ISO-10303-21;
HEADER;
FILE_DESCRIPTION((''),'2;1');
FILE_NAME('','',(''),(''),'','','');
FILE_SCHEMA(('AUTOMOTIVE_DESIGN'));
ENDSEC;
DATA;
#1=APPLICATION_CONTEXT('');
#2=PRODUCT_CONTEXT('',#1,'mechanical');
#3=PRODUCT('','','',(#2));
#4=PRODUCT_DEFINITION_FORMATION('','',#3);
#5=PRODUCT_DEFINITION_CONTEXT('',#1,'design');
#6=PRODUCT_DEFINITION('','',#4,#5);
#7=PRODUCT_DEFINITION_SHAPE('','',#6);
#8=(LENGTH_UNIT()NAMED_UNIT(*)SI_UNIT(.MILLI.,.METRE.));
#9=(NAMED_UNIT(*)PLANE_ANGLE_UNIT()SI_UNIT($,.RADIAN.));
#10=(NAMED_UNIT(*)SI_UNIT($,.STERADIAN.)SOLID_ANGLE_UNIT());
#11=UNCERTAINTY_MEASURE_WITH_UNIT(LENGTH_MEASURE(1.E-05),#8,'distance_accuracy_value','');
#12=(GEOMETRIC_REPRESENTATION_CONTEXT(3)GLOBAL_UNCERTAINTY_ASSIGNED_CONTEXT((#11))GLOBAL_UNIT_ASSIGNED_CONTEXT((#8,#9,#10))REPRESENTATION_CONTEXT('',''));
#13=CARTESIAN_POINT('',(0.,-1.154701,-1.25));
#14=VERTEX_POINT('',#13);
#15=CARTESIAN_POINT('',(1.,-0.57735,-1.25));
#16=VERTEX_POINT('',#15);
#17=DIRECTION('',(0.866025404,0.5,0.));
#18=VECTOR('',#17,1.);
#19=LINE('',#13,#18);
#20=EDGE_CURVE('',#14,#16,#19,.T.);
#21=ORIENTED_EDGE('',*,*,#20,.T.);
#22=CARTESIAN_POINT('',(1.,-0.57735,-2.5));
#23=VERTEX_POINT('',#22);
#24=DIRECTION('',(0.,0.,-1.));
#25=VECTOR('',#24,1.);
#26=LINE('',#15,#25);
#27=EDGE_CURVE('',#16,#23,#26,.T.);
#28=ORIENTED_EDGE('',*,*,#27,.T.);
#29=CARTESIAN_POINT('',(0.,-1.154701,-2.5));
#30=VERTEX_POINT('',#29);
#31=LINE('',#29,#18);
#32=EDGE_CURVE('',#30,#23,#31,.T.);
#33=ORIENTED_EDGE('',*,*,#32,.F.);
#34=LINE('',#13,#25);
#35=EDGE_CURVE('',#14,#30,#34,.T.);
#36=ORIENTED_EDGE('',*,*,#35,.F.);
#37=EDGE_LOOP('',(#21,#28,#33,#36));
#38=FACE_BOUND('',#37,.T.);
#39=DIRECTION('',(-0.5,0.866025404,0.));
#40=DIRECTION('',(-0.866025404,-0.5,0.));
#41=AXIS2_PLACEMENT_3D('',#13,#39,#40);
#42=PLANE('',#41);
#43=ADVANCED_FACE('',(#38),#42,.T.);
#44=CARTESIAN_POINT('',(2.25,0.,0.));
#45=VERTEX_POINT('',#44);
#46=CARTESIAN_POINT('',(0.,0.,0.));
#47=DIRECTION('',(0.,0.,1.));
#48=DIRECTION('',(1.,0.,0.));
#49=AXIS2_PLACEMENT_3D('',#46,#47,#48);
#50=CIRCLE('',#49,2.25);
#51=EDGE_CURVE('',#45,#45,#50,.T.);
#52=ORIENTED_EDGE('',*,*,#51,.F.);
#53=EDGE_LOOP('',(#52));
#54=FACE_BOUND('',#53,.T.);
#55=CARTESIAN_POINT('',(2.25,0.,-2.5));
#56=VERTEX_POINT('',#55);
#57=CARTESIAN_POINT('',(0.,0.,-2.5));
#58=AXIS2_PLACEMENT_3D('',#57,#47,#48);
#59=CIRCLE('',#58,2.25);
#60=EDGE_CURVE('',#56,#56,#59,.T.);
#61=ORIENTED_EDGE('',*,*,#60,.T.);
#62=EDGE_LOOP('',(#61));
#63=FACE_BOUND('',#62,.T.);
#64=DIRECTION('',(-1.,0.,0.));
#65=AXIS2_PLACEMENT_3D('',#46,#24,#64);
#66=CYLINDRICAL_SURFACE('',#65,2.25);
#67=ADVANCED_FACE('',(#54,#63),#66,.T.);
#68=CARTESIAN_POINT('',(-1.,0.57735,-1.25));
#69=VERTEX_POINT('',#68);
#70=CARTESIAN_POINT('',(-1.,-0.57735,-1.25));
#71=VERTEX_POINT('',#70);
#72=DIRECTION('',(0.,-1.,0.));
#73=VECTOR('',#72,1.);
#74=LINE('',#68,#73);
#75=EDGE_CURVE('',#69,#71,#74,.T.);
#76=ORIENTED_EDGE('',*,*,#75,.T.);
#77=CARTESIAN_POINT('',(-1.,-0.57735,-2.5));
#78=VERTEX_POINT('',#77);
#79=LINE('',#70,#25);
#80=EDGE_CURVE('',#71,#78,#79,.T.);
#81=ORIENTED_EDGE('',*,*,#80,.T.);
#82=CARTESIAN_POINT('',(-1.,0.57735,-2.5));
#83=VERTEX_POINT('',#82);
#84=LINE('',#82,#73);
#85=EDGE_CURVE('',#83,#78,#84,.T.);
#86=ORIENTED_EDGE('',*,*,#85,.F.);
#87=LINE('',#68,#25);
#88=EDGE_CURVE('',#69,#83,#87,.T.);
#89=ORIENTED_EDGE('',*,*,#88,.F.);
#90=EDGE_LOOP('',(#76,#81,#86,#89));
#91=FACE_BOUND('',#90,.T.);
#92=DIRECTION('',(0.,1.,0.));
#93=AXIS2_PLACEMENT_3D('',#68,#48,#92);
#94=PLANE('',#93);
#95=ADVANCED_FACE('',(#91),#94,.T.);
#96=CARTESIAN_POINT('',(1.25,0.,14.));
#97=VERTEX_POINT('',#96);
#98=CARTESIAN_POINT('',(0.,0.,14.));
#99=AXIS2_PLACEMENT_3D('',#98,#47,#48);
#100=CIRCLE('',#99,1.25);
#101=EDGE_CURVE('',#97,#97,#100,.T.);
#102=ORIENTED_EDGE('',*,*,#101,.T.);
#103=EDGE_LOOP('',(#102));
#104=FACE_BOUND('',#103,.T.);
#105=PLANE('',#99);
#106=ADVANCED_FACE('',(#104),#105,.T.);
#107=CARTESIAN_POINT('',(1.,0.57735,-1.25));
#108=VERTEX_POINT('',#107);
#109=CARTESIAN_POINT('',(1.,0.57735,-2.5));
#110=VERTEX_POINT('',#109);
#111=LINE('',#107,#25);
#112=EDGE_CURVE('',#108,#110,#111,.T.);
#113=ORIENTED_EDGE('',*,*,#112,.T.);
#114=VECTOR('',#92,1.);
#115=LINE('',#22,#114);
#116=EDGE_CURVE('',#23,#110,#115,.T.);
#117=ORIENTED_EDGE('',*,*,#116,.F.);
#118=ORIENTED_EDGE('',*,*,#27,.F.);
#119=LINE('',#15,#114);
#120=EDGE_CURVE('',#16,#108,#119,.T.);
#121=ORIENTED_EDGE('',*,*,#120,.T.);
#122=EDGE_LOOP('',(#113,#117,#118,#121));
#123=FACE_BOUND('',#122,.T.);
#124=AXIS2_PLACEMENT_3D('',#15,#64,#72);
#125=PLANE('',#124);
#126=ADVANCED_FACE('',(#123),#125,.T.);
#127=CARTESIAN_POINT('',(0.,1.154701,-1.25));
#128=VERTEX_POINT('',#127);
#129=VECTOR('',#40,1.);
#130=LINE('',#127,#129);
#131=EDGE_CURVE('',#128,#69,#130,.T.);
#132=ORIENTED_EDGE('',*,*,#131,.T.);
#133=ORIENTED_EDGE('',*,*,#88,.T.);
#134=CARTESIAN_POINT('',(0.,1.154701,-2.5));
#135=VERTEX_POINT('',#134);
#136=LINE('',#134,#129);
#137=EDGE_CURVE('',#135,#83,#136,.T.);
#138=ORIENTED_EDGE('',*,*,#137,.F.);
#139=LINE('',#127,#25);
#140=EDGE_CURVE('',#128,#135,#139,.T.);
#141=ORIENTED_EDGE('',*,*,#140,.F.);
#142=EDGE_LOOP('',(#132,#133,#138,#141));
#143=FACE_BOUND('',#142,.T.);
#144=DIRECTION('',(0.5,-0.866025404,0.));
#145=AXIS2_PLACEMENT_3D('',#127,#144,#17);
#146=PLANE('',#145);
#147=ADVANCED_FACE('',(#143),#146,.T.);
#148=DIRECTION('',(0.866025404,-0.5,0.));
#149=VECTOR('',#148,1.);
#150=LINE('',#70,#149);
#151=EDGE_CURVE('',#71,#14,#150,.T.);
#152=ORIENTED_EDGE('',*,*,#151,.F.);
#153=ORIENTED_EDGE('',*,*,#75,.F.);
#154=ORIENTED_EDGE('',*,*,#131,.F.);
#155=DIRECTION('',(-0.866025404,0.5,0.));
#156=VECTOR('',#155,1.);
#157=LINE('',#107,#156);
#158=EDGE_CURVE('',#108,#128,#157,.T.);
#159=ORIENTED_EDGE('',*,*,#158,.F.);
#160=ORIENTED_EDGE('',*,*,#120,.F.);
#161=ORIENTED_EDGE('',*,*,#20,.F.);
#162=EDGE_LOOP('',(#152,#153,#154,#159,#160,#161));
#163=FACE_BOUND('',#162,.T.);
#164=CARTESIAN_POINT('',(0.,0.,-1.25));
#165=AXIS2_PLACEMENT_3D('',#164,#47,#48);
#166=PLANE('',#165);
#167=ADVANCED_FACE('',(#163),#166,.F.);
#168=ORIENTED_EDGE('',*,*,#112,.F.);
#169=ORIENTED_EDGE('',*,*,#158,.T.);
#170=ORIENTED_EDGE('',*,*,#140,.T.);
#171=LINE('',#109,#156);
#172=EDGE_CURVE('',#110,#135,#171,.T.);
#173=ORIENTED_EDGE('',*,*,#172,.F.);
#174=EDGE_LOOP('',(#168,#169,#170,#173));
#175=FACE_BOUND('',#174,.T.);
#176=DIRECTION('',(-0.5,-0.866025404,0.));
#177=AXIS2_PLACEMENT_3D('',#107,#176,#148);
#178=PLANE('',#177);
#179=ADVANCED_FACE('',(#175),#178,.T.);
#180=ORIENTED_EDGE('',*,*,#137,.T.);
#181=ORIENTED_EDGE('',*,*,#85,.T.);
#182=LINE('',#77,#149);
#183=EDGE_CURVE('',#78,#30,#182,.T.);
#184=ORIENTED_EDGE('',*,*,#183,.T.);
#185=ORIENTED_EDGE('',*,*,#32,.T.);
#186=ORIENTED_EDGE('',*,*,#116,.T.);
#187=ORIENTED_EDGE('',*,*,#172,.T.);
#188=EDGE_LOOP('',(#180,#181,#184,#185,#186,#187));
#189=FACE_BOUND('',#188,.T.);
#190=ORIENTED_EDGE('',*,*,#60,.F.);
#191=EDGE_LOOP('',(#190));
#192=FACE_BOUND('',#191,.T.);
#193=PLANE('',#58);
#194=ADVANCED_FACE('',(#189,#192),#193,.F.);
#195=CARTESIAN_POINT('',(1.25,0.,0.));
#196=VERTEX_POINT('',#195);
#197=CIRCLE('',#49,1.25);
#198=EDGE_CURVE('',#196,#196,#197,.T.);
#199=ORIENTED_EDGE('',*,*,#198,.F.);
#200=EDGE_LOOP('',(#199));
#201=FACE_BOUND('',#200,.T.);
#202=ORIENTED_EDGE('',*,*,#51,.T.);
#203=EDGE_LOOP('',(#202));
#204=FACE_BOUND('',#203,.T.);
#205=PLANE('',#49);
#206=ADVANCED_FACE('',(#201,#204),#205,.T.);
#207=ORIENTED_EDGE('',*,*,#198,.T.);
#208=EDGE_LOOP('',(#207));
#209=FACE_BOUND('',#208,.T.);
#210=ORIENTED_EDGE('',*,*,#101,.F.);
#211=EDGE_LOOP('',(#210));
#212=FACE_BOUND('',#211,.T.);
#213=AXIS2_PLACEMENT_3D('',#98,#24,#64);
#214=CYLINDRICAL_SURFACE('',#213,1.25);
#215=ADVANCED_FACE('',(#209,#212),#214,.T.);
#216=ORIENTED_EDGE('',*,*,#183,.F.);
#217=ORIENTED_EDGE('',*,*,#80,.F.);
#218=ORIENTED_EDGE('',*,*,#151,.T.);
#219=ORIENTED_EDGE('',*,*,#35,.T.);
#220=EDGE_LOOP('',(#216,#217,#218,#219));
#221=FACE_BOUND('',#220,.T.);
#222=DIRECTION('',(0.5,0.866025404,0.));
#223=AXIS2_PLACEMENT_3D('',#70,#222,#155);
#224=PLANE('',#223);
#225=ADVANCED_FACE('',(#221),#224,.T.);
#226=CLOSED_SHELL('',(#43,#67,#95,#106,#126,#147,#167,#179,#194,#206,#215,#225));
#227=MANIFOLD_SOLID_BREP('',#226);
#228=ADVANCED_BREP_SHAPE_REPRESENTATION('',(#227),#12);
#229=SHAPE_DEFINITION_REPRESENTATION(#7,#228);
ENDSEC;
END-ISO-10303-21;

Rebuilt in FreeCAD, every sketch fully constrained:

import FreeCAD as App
import Part
import Sketcher
from FreeCAD import Vector
Q = App.Units.Quantity


def add_polygon(sketch, points):
    """Adds a closed chain of lines whose ends are joined by coincident constraints."""
    first, n = sketch.GeometryCount, len(points)
    for a, b in zip(points, points[1:] + points[:1]):
        sketch.addGeometry(Part.LineSegment(App.Vector(*a, 0), App.Vector(*b, 0)), False)
    for i in range(n):
        sketch.addConstraint(Sketcher.Constraint("Coincident", first + i, 2, first + (i + 1) % n, 1))

doc = App.newDocument("Part")
body = doc.addObject("PartDesign::Body", "Body")

sketch1 = body.newObject("Sketcher::SketchObject", "Sketch")
sketch1.AttachmentSupport = (doc.getObject("XY_Plane"), [""])
sketch1.MapMode = "FlatFace"
sketch1.AttachmentOffset = App.Placement(Vector(0, 0, -2.5), App.Rotation())
sketch1.addGeometry(Part.Circle(Vector(0, 0, 0), Vector(0, 0, 1), 2.25), False)
sketch1.addConstraint([
    Sketcher.Constraint("Coincident", 0, 3, -1, 1),
    Sketcher.Constraint("Diameter", 0, 4.5),
])
pad1 = body.newObject("PartDesign::Pad", "Pad")
pad1.Profile = sketch1
pad1.Length = 2.5

sketch2 = body.newObject("Sketcher::SketchObject", "Sketch001")
sketch2.AttachmentSupport = (doc.getObject("XY_Plane"), [""])
sketch2.MapMode = "FlatFace"
sketch2.addGeometry(Part.Circle(Vector(0, 0, 0), Vector(0, 0, 1), 1.25), False)
sketch2.addConstraint([
    Sketcher.Constraint("Coincident", 0, 3, -1, 1),
    Sketcher.Constraint("Diameter", 0, 2.5),
])
pad2 = body.newObject("PartDesign::Pad", "Pad001")
pad2.Profile = sketch2
pad2.Length = 14

sketch3 = body.newObject("Sketcher::SketchObject", "Sketch002")
sketch3.AttachmentSupport = (doc.getObject("XY_Plane"), [""])
sketch3.MapMode = "FlatFace"
sketch3.AttachmentOffset = App.Placement(Vector(0, 0, -2.5), App.Rotation())
add_polygon(sketch3, [(0, -1.154701), (1, -0.57735), (1, 0.57735), (0, 1.154701), (-1, 0.57735), (-1, -0.57735)])
sketch3.addConstraint([
    Sketcher.Constraint("Vertical", 1),
    Sketcher.Constraint("Vertical", 4),
    Sketcher.Constraint("Symmetric", 0, 2, 3, 2, -1, 1),
    Sketcher.Constraint("Symmetric", 2, 2, 5, 2, -1, 1),
    Sketcher.Constraint("PointOnObject", 2, 2, -2),
    Sketcher.Constraint("Parallel", 2, 5),
    Sketcher.Constraint("Horizontal", 1, 2, 3, 2),
    Sketcher.Constraint("Angle", 0, Q("30 deg")),
    Sketcher.Constraint("DistanceX", -1, 1, 0, 2, 1.0),
    Sketcher.Constraint("DistanceY", 1, 1, 1, 2, 1.154701),
])
pocket1 = body.newObject("PartDesign::Pocket", "Pocket")
pocket1.Profile = sketch3
pocket1.Length = 1.25
pocket1.Reversed = True

doc.recompute()
